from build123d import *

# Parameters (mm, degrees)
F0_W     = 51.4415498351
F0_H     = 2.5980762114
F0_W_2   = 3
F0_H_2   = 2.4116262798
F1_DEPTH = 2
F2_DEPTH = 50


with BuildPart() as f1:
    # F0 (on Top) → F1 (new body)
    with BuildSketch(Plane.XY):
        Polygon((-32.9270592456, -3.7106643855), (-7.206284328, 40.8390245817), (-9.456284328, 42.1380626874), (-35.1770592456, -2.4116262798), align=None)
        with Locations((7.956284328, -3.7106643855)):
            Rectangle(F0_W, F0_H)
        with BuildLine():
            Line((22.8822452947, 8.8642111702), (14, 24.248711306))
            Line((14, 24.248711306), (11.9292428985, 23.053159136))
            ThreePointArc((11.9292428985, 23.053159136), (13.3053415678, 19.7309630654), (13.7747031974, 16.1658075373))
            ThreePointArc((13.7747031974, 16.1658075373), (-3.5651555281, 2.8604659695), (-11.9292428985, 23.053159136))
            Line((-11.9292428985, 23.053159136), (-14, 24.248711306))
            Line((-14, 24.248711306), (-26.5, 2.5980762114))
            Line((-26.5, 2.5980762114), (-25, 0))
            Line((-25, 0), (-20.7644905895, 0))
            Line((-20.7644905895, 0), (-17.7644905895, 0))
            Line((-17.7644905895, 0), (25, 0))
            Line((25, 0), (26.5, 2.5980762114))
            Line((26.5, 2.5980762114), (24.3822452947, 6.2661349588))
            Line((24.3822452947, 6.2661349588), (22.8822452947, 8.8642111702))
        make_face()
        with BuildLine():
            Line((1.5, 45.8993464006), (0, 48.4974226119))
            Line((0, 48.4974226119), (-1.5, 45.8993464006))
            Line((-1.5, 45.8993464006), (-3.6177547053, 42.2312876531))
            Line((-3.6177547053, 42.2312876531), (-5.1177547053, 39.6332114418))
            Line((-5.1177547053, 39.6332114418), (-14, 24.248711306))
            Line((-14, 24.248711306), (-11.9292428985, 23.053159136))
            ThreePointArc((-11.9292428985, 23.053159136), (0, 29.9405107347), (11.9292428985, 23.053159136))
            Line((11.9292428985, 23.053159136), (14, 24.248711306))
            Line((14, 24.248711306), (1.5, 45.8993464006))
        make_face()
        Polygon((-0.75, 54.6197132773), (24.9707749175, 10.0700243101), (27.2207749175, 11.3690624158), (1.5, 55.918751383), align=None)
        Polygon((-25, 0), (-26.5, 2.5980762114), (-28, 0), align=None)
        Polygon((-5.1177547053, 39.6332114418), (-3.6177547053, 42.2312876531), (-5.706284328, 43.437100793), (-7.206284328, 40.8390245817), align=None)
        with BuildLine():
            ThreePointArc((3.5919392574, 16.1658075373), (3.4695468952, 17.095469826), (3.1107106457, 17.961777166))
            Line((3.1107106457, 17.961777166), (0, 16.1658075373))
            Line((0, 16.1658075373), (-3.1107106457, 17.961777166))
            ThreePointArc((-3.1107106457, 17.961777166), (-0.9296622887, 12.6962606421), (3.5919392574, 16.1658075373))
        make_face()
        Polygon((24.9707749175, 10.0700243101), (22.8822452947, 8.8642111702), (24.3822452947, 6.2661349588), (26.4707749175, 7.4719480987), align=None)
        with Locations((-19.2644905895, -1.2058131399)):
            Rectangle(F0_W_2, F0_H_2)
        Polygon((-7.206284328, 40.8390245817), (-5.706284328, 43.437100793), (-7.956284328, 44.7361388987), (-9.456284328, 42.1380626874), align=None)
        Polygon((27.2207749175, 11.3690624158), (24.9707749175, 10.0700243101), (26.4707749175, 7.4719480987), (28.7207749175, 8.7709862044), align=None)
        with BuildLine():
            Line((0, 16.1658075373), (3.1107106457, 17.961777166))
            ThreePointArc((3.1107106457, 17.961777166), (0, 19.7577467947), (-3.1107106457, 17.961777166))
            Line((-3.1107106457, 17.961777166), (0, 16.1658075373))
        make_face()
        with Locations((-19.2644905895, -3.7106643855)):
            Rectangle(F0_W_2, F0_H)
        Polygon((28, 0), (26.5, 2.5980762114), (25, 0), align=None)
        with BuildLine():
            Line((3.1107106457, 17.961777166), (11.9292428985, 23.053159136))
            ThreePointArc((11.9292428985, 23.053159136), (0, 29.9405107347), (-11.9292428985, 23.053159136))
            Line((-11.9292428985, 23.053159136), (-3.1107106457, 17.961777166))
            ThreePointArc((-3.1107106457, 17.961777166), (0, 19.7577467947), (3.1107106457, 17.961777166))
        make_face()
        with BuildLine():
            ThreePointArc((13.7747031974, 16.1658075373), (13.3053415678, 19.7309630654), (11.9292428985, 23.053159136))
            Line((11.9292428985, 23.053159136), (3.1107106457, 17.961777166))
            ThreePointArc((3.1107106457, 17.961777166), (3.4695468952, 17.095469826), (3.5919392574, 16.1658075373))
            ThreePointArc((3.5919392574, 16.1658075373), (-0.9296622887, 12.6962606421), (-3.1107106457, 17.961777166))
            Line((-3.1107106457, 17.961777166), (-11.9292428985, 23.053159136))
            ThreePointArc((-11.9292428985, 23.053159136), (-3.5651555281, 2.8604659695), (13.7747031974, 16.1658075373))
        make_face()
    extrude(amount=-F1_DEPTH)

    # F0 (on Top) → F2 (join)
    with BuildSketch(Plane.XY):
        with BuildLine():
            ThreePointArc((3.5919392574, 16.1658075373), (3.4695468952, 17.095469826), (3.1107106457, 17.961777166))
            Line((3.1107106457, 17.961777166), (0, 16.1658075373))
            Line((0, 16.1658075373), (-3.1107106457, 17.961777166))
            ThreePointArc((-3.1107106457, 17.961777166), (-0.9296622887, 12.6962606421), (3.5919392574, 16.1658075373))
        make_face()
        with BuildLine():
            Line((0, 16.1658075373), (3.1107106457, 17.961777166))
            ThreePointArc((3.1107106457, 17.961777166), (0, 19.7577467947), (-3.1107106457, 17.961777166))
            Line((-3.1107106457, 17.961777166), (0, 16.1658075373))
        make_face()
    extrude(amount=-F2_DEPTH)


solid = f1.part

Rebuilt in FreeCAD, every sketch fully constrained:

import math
import FreeCAD as App
import Part
import Sketcher
from FreeCAD import Vector
Q = App.Units.Quantity

doc = App.newDocument("Part")
body = doc.addObject("PartDesign::Body", "Body")

# Sketch on XY plane
sketch1 = body.newObject("Sketcher::SketchObject", "Sketch")
sketch1.AttachmentSupport = (doc.getObject("XY_Plane"), [""])
sketch1.MapMode = "FlatFace"
sketch1.addGeometry([
    Part.LineSegment(Vector(-32.9, -3.7, 0), Vector(-7.2, 40.8, 0)),  # 0
    Part.LineSegment(Vector(-7.2, 40.8, 0), Vector(-5.1, 39.6, 0)),  # 1
    Part.LineSegment(Vector(-5.1, 39.6, 0), Vector(-14, 24.2, 0)),  # 2
    Part.LineSegment(Vector(-14, 24.2, 0), Vector(-26.5, 2.6, 0)),  # 3
    Part.LineSegment(Vector(-26.5, 2.6, 0), Vector(-28, 0, 0)),  # 4
    Part.LineSegment(Vector(-28, 0, 0), Vector(-20.8, 0, 0)),  # 5
    Part.LineSegment(Vector(-20.8, 0, 0), Vector(-20.8, -5, 0)),  # 6
    Part.LineSegment(Vector(-20.8, -5, 0), Vector(33.7, -5, 0)),  # 7
    Part.LineSegment(Vector(33.7, -5, 0), Vector(33.7, -2.4, 0)),  # 8
    Part.LineSegment(Vector(33.7, -2.4, 0), Vector(-17.8, -2.4, 0)),  # 9
    Part.LineSegment(Vector(-17.8, -2.4, 0), Vector(-17.8, 0, 0)),  # 10
    Part.LineSegment(Vector(-17.8, 0, 0), Vector(28, 0, 0)),  # 11
    Part.LineSegment(Vector(28, 0, 0), Vector(26.5, 2.6, 0)),  # 12
    Part.LineSegment(Vector(26.5, 2.6, 0), Vector(24.4, 6.3, 0)),  # 13
    Part.LineSegment(Vector(24.4, 6.3, 0), Vector(26.5, 7.5, 0)),  # 14
    Part.LineSegment(Vector(26.5, 7.5, 0), Vector(28.7, 8.8, 0)),  # 15
    Part.LineSegment(Vector(28.7, 8.8, 0), Vector(27.2, 11.4, 0)),  # 16
    Part.LineSegment(Vector(27.2, 11.4, 0), Vector(1.5, 55.9, 0)),  # 17
    Part.LineSegment(Vector(1.5, 55.9, 0), Vector(-0.8, 54.6, 0)),  # 18
    Part.LineSegment(Vector(-0.8, 54.6, 0), Vector(25, 10.1, 0)),  # 19
    Part.LineSegment(Vector(25, 10.1, 0), Vector(22.9, 8.9, 0)),  # 20
    Part.LineSegment(Vector(22.9, 8.9, 0), Vector(14, 24.2, 0)),  # 21
    Part.LineSegment(Vector(14, 24.2, 0), Vector(1.5, 45.9, 0)),  # 22
    Part.LineSegment(Vector(1.5, 45.9, 0), Vector(0, 48.5, 0)),  # 23
    Part.LineSegment(Vector(0, 48.5, 0), Vector(-1.5, 45.9, 0)),  # 24
    Part.LineSegment(Vector(-1.5, 45.9, 0), Vector(-3.6, 42.2, 0)),  # 25
    Part.LineSegment(Vector(-3.6, 42.2, 0), Vector(-8, 44.7, 0)),  # 26
    Part.LineSegment(Vector(-8, 44.7, 0), Vector(-9.5, 42.1, 0)),  # 27
    Part.LineSegment(Vector(-9.5, 42.1, 0), Vector(-35.2, -2.4, 0)),  # 28
    Part.LineSegment(Vector(-35.2, -2.4, 0), Vector(-32.9, -3.7, 0)),  # 29
], False)
sketch1.addConstraint([
    Sketcher.Constraint("Coincident", 0, 2, 1, 1),
    Sketcher.Constraint("Coincident", 1, 2, 2, 1),
    Sketcher.Constraint("Coincident", 2, 2, 3, 1),
    Sketcher.Constraint("Coincident", 3, 2, 4, 1),
    Sketcher.Constraint("Coincident", 4, 2, 5, 1),
    Sketcher.Constraint("Coincident", 5, 2, 6, 1),
    Sketcher.Constraint("Coincident", 6, 2, 7, 1),
    Sketcher.Constraint("Coincident", 7, 2, 8, 1),
    Sketcher.Constraint("Coincident", 8, 2, 9, 1),
    Sketcher.Constraint("Coincident", 9, 2, 10, 1),
    Sketcher.Constraint("Coincident", 10, 2, 11, 1),
    Sketcher.Constraint("Coincident", 11, 2, 12, 1),
    Sketcher.Constraint("Coincident", 12, 2, 13, 1),
    Sketcher.Constraint("Coincident", 13, 2, 14, 1),
    Sketcher.Constraint("Coincident", 14, 2, 15, 1),
    Sketcher.Constraint("Coincident", 15, 2, 16, 1),
    Sketcher.Constraint("Coincident", 16, 2, 17, 1),
    Sketcher.Constraint("Coincident", 17, 2, 18, 1),
    Sketcher.Constraint("Coincident", 18, 2, 19, 1),
    Sketcher.Constraint("Coincident", 19, 2, 20, 1),
    Sketcher.Constraint("Coincident", 20, 2, 21, 1),
    Sketcher.Constraint("Coincident", 21, 2, 22, 1),
    Sketcher.Constraint("Coincident", 22, 2, 23, 1),
    Sketcher.Constraint("Coincident", 23, 2, 24, 1),
    Sketcher.Constraint("Coincident", 24, 2, 25, 1),
    Sketcher.Constraint("Coincident", 25, 2, 26, 1),
    Sketcher.Constraint("Coincident", 26, 2, 27, 1),
    Sketcher.Constraint("Coincident", 27, 2, 28, 1),
    Sketcher.Constraint("Coincident", 28, 2, 29, 1),
    Sketcher.Constraint("Coincident", 29, 2, 0, 1),
    Sketcher.Constraint("Horizontal", 5),
    Sketcher.Constraint("Vertical", 6),
    Sketcher.Constraint("Horizontal", 7),
    Sketcher.Constraint("Vertical", 8),
    Sketcher.Constraint("Horizontal", 9),
    Sketcher.Constraint("Vertical", 10),
    Sketcher.Constraint("Horizontal", 11),
    Sketcher.Constraint("Symmetric", 4, 2, 11, 2, -1, 1),
    Sketcher.Constraint("Symmetric", 3, 2, 12, 2, -2),
    Sketcher.Constraint("Symmetric", 2, 2, 21, 2, -2),
    Sketcher.Constraint("Symmetric", 22, 2, 24, 2, -2),
    Sketcher.Constraint("PointOnObject", 4, 2, -1),
    Sketcher.Constraint("PointOnObject", 23, 2, -2),
    Sketcher.Constraint("Perpendicular", 0, 1),
    Sketcher.Constraint("Perpendicular", 1, 2),
    Sketcher.Constraint("Parallel", 2, 3),
    Sketcher.Constraint("Parallel", 3, 4),
    Sketcher.Constraint("Parallel", 12, 13),
    Sketcher.Constraint("Perpendicular", 13, 14),
    Sketcher.Constraint("Parallel", 14, 15),
    Sketcher.Constraint("Perpendicular", 15, 16),
    Sketcher.Constraint("Parallel", 16, 17),
    Sketcher.Constraint("Perpendicular", 17, 18),
    Sketcher.Constraint("Perpendicular", 18, 19),
    Sketcher.Constraint("Perpendicular", 19, 20),
    Sketcher.Constraint("Perpendicular", 20, 21),
    Sketcher.Constraint("Parallel", 21, 22),
    Sketcher.Constraint("Parallel", 22, 23),
    Sketcher.Constraint("Parallel", 24, 25),
    Sketcher.Constraint("Perpendicular", 25, 26),
    Sketcher.Constraint("Perpendicular", 26, 27),
    Sketcher.Constraint("Parallel", 27, 28),
    Sketcher.Constraint("Perpendicular", 28, 29),
    Sketcher.Constraint("Horizontal", 9, 2, 28, 2),
    Sketcher.Constraint("Vertical", 17, 2, 22, 2),
    Sketcher.Constraint("Equal", 1, 14),
    Sketcher.Constraint("Equal", 12, 16),
    Sketcher.Constraint("Equal", 0, 17),
    Sketcher.Constraint("Equal", 15, 18),
    Sketcher.Constraint("Equal", 17, 19),
    Sketcher.Constraint("Equal", 2, 21),
    Sketcher.Constraint("Equal", 3, 22),
    Sketcher.Constraint("Equal", 16, 23),
    Sketcher.Constraint("Equal", 13, 25),
    Sketcher.Constraint("Equal", 24, 27),
    Sketcher.Constraint("Equal", 18, 29),
    Sketcher.Constraint("Angle", 0, Q("60 deg")),
    Sketcher.Constraint("Distance", 3, 25.0),
    Sketcher.Constraint("Distance", 4, 3.0),
    Sketcher.Constraint("DistanceX", 5, 2, 9, 2, 3.0),
    Sketcher.Constraint("DistanceX", 18, 2, -1, 1, 0.75),
    Sketcher.Constraint("DistanceY", 2, 2, 18, 2, 30.371002),
    Sketcher.Constraint("DistanceX", 5, 1, 5, 2, 7.235509),
    Sketcher.Constraint("DistanceX", 7, 1, 7, 2, 54.44155),
    Sketcher.Constraint("DistanceY", 2, 2, 1, 2, 15.3845),
    Sketcher.Constraint("DistanceY", 6, 2, 6, 1, 5.009702),
])
pad1 = body.newObject("PartDesign::Pad", "Pad")
pad1.Profile = sketch1
pad1.Length = 2
pad1.Reversed = True

# Sketch on XY plane
sketch2 = body.newObject("Sketcher::SketchObject", "Sketch001")
sketch2.AttachmentSupport = (doc.getObject("XY_Plane"), [""])
sketch2.MapMode = "FlatFace"
sketch2.addGeometry([
    Part.ArcOfCircle(Part.Circle(Vector(0, 16.2, 0), Vector(0, 0, 1), 3.6), math.radians(0), math.radians(30)),
    Part.ArcOfCircle(Part.Circle(Vector(0, 16.2, 0), Vector(0, 0, 1), 3.6), math.radians(30), math.radians(150)),
    Part.ArcOfCircle(Part.Circle(Vector(0, 16.2, 0), Vector(0, 0, 1), 3.6), math.radians(150), math.radians(360)),
], False)
sketch2.addConstraint([
    Sketcher.Constraint("Tangent", 0, 2, 1, 1),
    Sketcher.Constraint("Tangent", 1, 2, 2, 1),
    Sketcher.Constraint("Tangent", 2, 2, 0, 1),
    Sketcher.Constraint("Symmetric", 0, 2, 1, 2, -2),
    Sketcher.Constraint("Horizontal", 1, 3, 2, 2),
    Sketcher.Constraint("Radius", 0, 3.591939),
    Sketcher.Constraint("DistanceX", -1, 1, 0, 2, 3.110711),
    Sketcher.Constraint("DistanceY", -1, 1, 0, 3, 16.165808),
])
pad2 = body.newObject("PartDesign::Pad", "Pad001")
pad2.Profile = sketch2
pad2.Length = 50
pad2.Reversed = True

doc.recompute()
